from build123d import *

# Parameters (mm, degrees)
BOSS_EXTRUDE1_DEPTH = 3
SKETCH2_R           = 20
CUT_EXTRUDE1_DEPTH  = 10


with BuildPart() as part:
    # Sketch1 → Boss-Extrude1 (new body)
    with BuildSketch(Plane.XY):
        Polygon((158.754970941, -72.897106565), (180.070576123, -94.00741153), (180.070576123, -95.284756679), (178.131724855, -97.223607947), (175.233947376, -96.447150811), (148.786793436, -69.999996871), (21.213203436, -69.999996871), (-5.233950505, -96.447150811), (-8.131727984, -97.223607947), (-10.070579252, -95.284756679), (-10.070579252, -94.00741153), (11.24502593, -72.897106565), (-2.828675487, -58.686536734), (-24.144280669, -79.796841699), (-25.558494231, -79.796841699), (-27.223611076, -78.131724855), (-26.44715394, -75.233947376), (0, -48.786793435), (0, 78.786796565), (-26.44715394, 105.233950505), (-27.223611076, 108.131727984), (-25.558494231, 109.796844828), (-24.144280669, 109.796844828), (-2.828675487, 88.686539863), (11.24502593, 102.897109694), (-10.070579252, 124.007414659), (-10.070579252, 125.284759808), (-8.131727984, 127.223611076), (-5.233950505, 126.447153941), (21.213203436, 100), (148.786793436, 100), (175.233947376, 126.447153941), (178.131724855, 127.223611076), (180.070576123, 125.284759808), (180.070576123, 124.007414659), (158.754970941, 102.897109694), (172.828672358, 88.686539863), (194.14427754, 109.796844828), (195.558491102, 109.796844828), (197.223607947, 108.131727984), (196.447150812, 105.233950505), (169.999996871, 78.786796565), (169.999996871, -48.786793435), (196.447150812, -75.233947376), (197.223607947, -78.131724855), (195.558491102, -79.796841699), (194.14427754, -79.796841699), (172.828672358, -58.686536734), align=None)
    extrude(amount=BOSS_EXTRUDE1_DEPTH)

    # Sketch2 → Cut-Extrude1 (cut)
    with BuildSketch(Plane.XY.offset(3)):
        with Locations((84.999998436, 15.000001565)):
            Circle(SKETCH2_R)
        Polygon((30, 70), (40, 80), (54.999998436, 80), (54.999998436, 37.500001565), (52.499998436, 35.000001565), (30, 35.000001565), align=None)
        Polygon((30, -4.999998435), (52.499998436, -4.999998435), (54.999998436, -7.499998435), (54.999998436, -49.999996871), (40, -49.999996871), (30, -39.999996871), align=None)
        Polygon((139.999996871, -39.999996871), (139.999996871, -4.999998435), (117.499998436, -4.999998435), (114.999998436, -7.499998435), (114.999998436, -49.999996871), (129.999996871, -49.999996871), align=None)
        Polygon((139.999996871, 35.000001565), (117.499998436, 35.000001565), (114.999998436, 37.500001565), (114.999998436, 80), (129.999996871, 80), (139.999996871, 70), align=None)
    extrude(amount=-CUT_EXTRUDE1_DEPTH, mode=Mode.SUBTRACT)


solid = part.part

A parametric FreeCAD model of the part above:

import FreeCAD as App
import Part
import Sketcher

V = App.Vector
Q = App.Units.Quantity

doc = App.newDocument("Part")
body = doc.addObject("PartDesign::Body", "Body")

sketch1 = body.newObject("Sketcher::SketchObject", "Sketch")
sketch1.AttachmentSupport = (doc.getObject("XY_Plane"), [""])
sketch1.MapMode = "FlatFace"
sketch1.addGeometry([
    Part.LineSegment(V(180.1, -94, 0), V(158.8, -72.9, 0)),
    Part.LineSegment(V(158.8, -72.9, 0), V(172.8, -58.7, 0)),
    Part.LineSegment(V(172.8, -58.7, 0), V(194.1, -79.8, 0)),
    Part.LineSegment(V(194.1, -79.8, 0), V(195.6, -79.8, 0)),
    Part.LineSegment(V(195.6, -79.8, 0), V(197.2, -78.1, 0)),
    Part.LineSegment(V(197.2, -78.1, 0), V(196.4, -75.2, 0)),
    Part.LineSegment(V(196.4, -75.2, 0), V(170, -48.8, 0)),
    Part.LineSegment(V(170, -48.8, 0), V(170, 78.8, 0)),
    Part.LineSegment(V(170, 78.8, 0), V(196.4, 105.2, 0)),
    Part.LineSegment(V(196.4, 105.2, 0), V(197.2, 108.1, 0)),
    Part.LineSegment(V(197.2, 108.1, 0), V(195.6, 109.8, 0)),
    Part.LineSegment(V(195.6, 109.8, 0), V(194.1, 109.8, 0)),
    Part.LineSegment(V(194.1, 109.8, 0), V(172.8, 88.7, 0)),
    Part.LineSegment(V(172.8, 88.7, 0), V(158.8, 102.9, 0)),
    Part.LineSegment(V(158.8, 102.9, 0), V(180.1, 124, 0)),
    Part.LineSegment(V(180.1, 124, 0), V(180.1, 125.3, 0)),
    Part.LineSegment(V(180.1, 125.3, 0), V(178.1, 127.2, 0)),
    Part.LineSegment(V(178.1, 127.2, 0), V(175.2, 126.4, 0)),
    Part.LineSegment(V(175.2, 126.4, 0), V(148.8, 100, 0)),
    Part.LineSegment(V(148.8, 100, 0), V(21.2, 100, 0)),
    Part.LineSegment(V(21.2, 100, 0), V(-5.2, 126.4, 0)),
    Part.LineSegment(V(-5.2, 126.4, 0), V(-8.1, 127.2, 0)),
    Part.LineSegment(V(-8.1, 127.2, 0), V(-10.1, 125.3, 0)),
    Part.LineSegment(V(-10.1, 125.3, 0), V(-10.1, 124, 0)),
    Part.LineSegment(V(-10.1, 124, 0), V(11.2, 102.9, 0)),
    Part.LineSegment(V(11.2, 102.9, 0), V(-2.8, 88.7, 0)),
    Part.LineSegment(V(-2.8, 88.7, 0), V(-24.1, 109.8, 0)),
    Part.LineSegment(V(-24.1, 109.8, 0), V(-25.6, 109.8, 0)),
    Part.LineSegment(V(-25.6, 109.8, 0), V(-27.2, 108.1, 0)),
    Part.LineSegment(V(-27.2, 108.1, 0), V(-26.4, 105.2, 0)),
    Part.LineSegment(V(-26.4, 105.2, 0), V(0, 78.8, 0)),
    Part.LineSegment(V(0, 78.8, 0), V(0, -48.8, 0)),
    Part.LineSegment(V(0, -48.8, 0), V(-26.4, -75.2, 0)),
    Part.LineSegment(V(-26.4, -75.2, 0), V(-27.2, -78.1, 0)),
    Part.LineSegment(V(-27.2, -78.1, 0), V(-25.6, -79.8, 0)),
    Part.LineSegment(V(-25.6, -79.8, 0), V(-24.1, -79.8, 0)),
    Part.LineSegment(V(-24.1, -79.8, 0), V(-2.8, -58.7, 0)),
    Part.LineSegment(V(-2.8, -58.7, 0), V(11.2, -72.9, 0)),
    Part.LineSegment(V(11.2, -72.9, 0), V(-10.1, -94, 0)),
    Part.LineSegment(V(-10.1, -94, 0), V(-10.1, -95.3, 0)),
    Part.LineSegment(V(-10.1, -95.3, 0), V(-8.1, -97.2, 0)),
    Part.LineSegment(V(-8.1, -97.2, 0), V(-5.2, -96.4, 0)),
    Part.LineSegment(V(-5.2, -96.4, 0), V(21.2, -70, 0)),
    Part.LineSegment(V(21.2, -70, 0), V(148.8, -70, 0)),
    Part.LineSegment(V(148.8, -70, 0), V(175.2, -96.4, 0)),
    Part.LineSegment(V(175.2, -96.4, 0), V(178.1, -97.2, 0)),
    Part.LineSegment(V(178.1, -97.2, 0), V(180.1, -95.3, 0)),
    Part.LineSegment(V(180.1, -95.3, 0), V(180.1, -94, 0)),
], False)
sketch1.addConstraint([
    Sketcher.Constraint("Coincident", 0, 2, 1, 1),
    Sketcher.Constraint("Coincident", 1, 2, 2, 1),
    Sketcher.Constraint("Coincident", 2, 2, 3, 1),
    Sketcher.Constraint("Coincident", 3, 2, 4, 1),
    Sketcher.Constraint("Coincident", 4, 2, 5, 1),
    Sketcher.Constraint("Coincident", 5, 2, 6, 1),
    Sketcher.Constraint("Coincident", 6, 2, 7, 1),
    Sketcher.Constraint("Coincident", 7, 2, 8, 1),
    Sketcher.Constraint("Coincident", 8, 2, 9, 1),
    Sketcher.Constraint("Coincident", 9, 2, 10, 1),
    Sketcher.Constraint("Coincident", 10, 2, 11, 1),
    Sketcher.Constraint("Coincident", 11, 2, 12, 1),
    Sketcher.Constraint("Coincident", 12, 2, 13, 1),
    Sketcher.Constraint("Coincident", 13, 2, 14, 1),
    Sketcher.Constraint("Coincident", 14, 2, 15, 1),
    Sketcher.Constraint("Coincident", 15, 2, 16, 1),
    Sketcher.Constraint("Coincident", 16, 2, 17, 1),
    Sketcher.Constraint("Coincident", 17, 2, 18, 1),
    Sketcher.Constraint("Coincident", 18, 2, 19, 1),
    Sketcher.Constraint("Coincident", 19, 2, 20, 1),
    Sketcher.Constraint("Coincident", 20, 2, 21, 1),
    Sketcher.Constraint("Coincident", 21, 2, 22, 1),
    Sketcher.Constraint("Coincident", 22, 2, 23, 1),
    Sketcher.Constraint("Coincident", 23, 2, 24, 1),
    Sketcher.Constraint("Coincident", 24, 2, 25, 1),
    Sketcher.Constraint("Coincident", 25, 2, 26, 1),
    Sketcher.Constraint("Coincident", 26, 2, 27, 1),
    Sketcher.Constraint("Coincident", 27, 2, 28, 1),
    Sketcher.Constraint("Coincident", 28, 2, 29, 1),
    Sketcher.Constraint("Coincident", 29, 2, 30, 1),
    Sketcher.Constraint("Coincident", 30, 2, 31, 1),
    Sketcher.Constraint("Coincident", 31, 2, 32, 1),
    Sketcher.Constraint("Coincident", 32, 2, 33, 1),
    Sketcher.Constraint("Coincident", 33, 2, 34, 1),
    Sketcher.Constraint("Coincident", 34, 2, 35, 1),
    Sketcher.Constraint("Coincident", 35, 2, 36, 1),
    Sketcher.Constraint("Coincident", 36, 2, 37, 1),
    Sketcher.Constraint("Coincident", 37, 2, 38, 1),
    Sketcher.Constraint("Coincident", 38, 2, 39, 1),
    Sketcher.Constraint("Coincident", 39, 2, 40, 1),
    Sketcher.Constraint("Coincident", 40, 2, 41, 1),
    Sketcher.Constraint("Coincident", 41, 2, 42, 1),
    Sketcher.Constraint("Coincident", 42, 2, 43, 1),
    Sketcher.Constraint("Coincident", 43, 2, 44, 1),
    Sketcher.Constraint("Coincident", 44, 2, 45, 1),
    Sketcher.Constraint("Coincident", 45, 2, 46, 1),
    Sketcher.Constraint("Coincident", 46, 2, 47, 1),
    Sketcher.Constraint("Coincident", 47, 2, 0, 1),
    Sketcher.Constraint("Horizontal", 3),
    Sketcher.Constraint("Vertical", 7),
    Sketcher.Constraint("Horizontal", 11),
    Sketcher.Constraint("Vertical", 15),
    Sketcher.Constraint("Horizontal", 19),
    Sketcher.Constraint("Vertical", 23),
    Sketcher.Constraint("Horizontal", 27),
    Sketcher.Constraint("Vertical", 31),
    Sketcher.Constraint("Horizontal", 35),
    Sketcher.Constraint("Vertical", 39),
    Sketcher.Constraint("Horizontal", 43),
    Sketcher.Constraint("Vertical", 47),
    Sketcher.Constraint("PointOnObject", 30, 2, -2),
    Sketcher.Constraint("Perpendicular", 0, 1),
    Sketcher.Constraint("Perpendicular", 1, 2),
    Sketcher.Constraint("Perpendicular", 4, 6),
    Sketcher.Constraint("Perpendicular", 6, 8),
    Sketcher.Constraint("Perpendicular", 8, 10),
    Sketcher.Constraint("Perpendicular", 12, 13),
    Sketcher.Constraint("Perpendicular", 13, 14),
    Sketcher.Constraint("Parallel", 10, 16),
    Sketcher.Constraint("Perpendicular", 5, 17),
    Sketcher.Constraint("Perpendicular", 16, 18),
    Sketcher.Constraint("Perpendicular", 18, 20),
    Sketcher.Constraint("Perpendicular", 9, 21),
    Sketcher.Constraint("Perpendicular", 20, 22),
    Sketcher.Constraint("Parallel", 2, 24),
    Sketcher.Constraint("Perpendicular", 24, 25),
    Sketcher.Constraint("Perpendicular", 25, 26),
    Sketcher.Constraint("Parallel", 22, 28),
    Sketcher.Constraint("Perpendicular", 17, 29),
    Sketcher.Constraint("Perpendicular", 28, 30),
    Sketcher.Constraint("Perpendicular", 30, 32),
    Sketcher.Constraint("Perpendicular", 21, 33),
    Sketcher.Constraint("Perpendicular", 32, 34),
    Sketcher.Constraint("Parallel", 14, 36),
    Sketcher.Constraint("Perpendicular", 36, 37),
    Sketcher.Constraint("Perpendicular", 37, 38),
    Sketcher.Constraint("Parallel", 34, 40),
    Sketcher.Constraint("Perpendicular", 29, 41),
    Sketcher.Constraint("Perpendicular", 40, 42),
    Sketcher.Constraint("Perpendicular", 42, 44),
    Sketcher.Constraint("Perpendicular", 33, 45),
    Sketcher.Constraint("Perpendicular", 44, 46),
    Sketcher.Constraint("Horizontal", 17, 2, 20, 2),
    Sketcher.Constraint("Horizontal", 16, 2, 21, 2),
    Sketcher.Constraint("Horizontal", 15, 2, 22, 2),
    Sketcher.Constraint("Horizontal", 14, 2, 23, 2),
    Sketcher.Constraint("Horizontal", 13, 2, 24, 2),
    Sketcher.Constraint("Horizontal", 12, 2, 25, 2),
    Sketcher.Constraint("Horizontal", 11, 2, 26, 2),
    Sketcher.Constraint("Horizontal", 9, 2, 28, 2),
    Sketcher.Constraint("Horizontal", 8, 2, 29, 2),
    Sketcher.Constraint("Horizontal", 7, 2, 30, 2),
    Sketcher.Constraint("Horizontal", 6, 2, 31, 2),
    Sketcher.Constraint("Horizontal", 5, 2, 32, 2),
    Sketcher.Constraint("Horizontal", 4, 2, 33, 2),
    Sketcher.Constraint("Horizontal", 3, 2, 34, 2),
    Sketcher.Constraint("Horizontal", 1, 2, 36, 2),
    Sketcher.Constraint("Horizontal", 0, 2, 37, 2),
    Sketcher.Constraint("Horizontal", 41, 2, 44, 2),
    Sketcher.Constraint("Horizontal", 40, 2, 45, 2),
    Sketcher.Constraint("Horizontal", 39, 2, 46, 2),
    Sketcher.Constraint("Horizontal", 38, 2, 47, 2),
    Sketcher.Constraint("Vertical", 5, 2, 8, 2),
    Sketcher.Constraint("Vertical", 4, 2, 9, 2),
    Sketcher.Constraint("Vertical", 3, 2, 10, 2),
    Sketcher.Constraint("Vertical", 2, 2, 11, 2),
    Sketcher.Constraint("Vertical", 1, 2, 12, 2),
    Sketcher.Constraint("Vertical", 0, 2, 13, 2),
    Sketcher.Constraint("Vertical", 29, 2, 32, 2),
    Sketcher.Constraint("Vertical", 28, 2, 33, 2),
    Sketcher.Constraint("Vertical", 26, 2, 35, 2),
    Sketcher.Constraint("Vertical", 25, 2, 36, 2),
    Sketcher.Constraint("Vertical", 23, 2, 38, 2),
    Sketcher.Constraint("Vertical", 21, 2, 40, 2),
    Sketcher.Constraint("Vertical", 20, 2, 41, 2),
    Sketcher.Constraint("Vertical", 19, 2, 42, 2),
    Sketcher.Constraint("Equal", 11, 27),
    Sketcher.Constraint("Equal", 43, 7),
    Sketcher.Constraint("Equal", 23, 39),
    Sketcher.Constraint("Equal", 0, 2),
    Sketcher.Constraint("Equal", 9, 17),
    Sketcher.Constraint("Equal", 8, 18),
    Sketcher.Constraint("Angle", 5, Q("105 deg")),
    Sketcher.Constraint("Distance", 0, Q("30 mm")),
    Sketcher.Constraint("Distance", 5, Q("3 mm")),
    Sketcher.Constraint("DistanceY", -1, 1, 18, 2, Q("100 mm")),
    Sketcher.Constraint("DistanceX", 19, 2, 19, 1, Q("127.57359 mm")),
    Sketcher.Constraint("DistanceX", 0, 2, 1, 2, Q("14.073701 mm")),
    Sketcher.Constraint("DistanceX", 21, 2, 13, 2, Q("166.886699 mm")),
    Sketcher.Constraint("DistanceY", 13, 2, 21, 2, Q("24.326501 mm")),
    Sketcher.Constraint("Distance", 4, Q("2.354831 mm")),
    Sketcher.Constraint("Distance", 16, Q("2.74195 mm")),
    Sketcher.Constraint("DistanceX", 3, 1, 3, 2, Q("1.414214 mm")),
    Sketcher.Constraint("DistanceY", 15, 1, 15, 2, Q("1.277345 mm")),
])
pad1 = body.newObject("PartDesign::Pad", "Pad")
pad1.Profile = sketch1
pad1.Length = 3

sketch2 = body.newObject("Sketcher::SketchObject", "Sketch001")
sketch2.AttachmentSupport = (doc.getObject("XY_Plane"), [""])
sketch2.MapMode = "FlatFace"
sketch2.AttachmentOffset = App.Placement(V(0, 0, 3), App.Rotation())
sketch2.addGeometry([
    Part.Circle(V(85, 15, 0), V(0, 0, 1), 20),
    Part.LineSegment(V(40, 80, 0), V(30, 70, 0)),
    Part.LineSegment(V(30, 70, 0), V(30, 35, 0)),
    Part.LineSegment(V(30, 35, 0), V(52.5, 35, 0)),
    Part.LineSegment(V(52.5, 35, 0), V(55, 37.5, 0)),
    Part.LineSegment(V(55, 37.5, 0), V(55, 80, 0)),
    Part.LineSegment(V(55, 80, 0), V(40, 80, 0)),
    Part.LineSegment(V(52.5, -5, 0), V(30, -5, 0)),
    Part.LineSegment(V(30, -5, 0), V(30, -40, 0)),
    Part.LineSegment(V(30, -40, 0), V(40, -50, 0)),
    Part.LineSegment(V(40, -50, 0), V(55, -50, 0)),
    Part.LineSegment(V(55, -50, 0), V(55, -7.5, 0)),
    Part.LineSegment(V(55, -7.5, 0), V(52.5, -5, 0)),
    Part.LineSegment(V(140, -40, 0), V(140, -5, 0)),
    Part.LineSegment(V(140, -5, 0), V(117.5, -5, 0)),
    Part.LineSegment(V(117.5, -5, 0), V(115, -7.5, 0)),
    Part.LineSegment(V(115, -7.5, 0), V(115, -50, 0)),
    Part.LineSegment(V(115, -50, 0), V(130, -50, 0)),
    Part.LineSegment(V(130, -50, 0), V(140, -40, 0)),
    Part.LineSegment(V(117.5, 35, 0), V(140, 35, 0)),
    Part.LineSegment(V(140, 35, 0), V(140, 70, 0)),
    Part.LineSegment(V(140, 70, 0), V(130, 80, 0)),
    Part.LineSegment(V(130, 80, 0), V(115, 80, 0)),
    Part.LineSegment(V(115, 80, 0), V(115, 37.5, 0)),
    Part.LineSegment(V(115, 37.5, 0), V(117.5, 35, 0)),
], False)
sketch2.addConstraint([
    Sketcher.Constraint("Coincident", 1, 2, 2, 1),
    Sketcher.Constraint("Coincident", 2, 2, 3, 1),
    Sketcher.Constraint("Coincident", 3, 2, 4, 1),
    Sketcher.Constraint("Coincident", 4, 2, 5, 1),
    Sketcher.Constraint("Coincident", 5, 2, 6, 1),
    Sketcher.Constraint("Coincident", 6, 2, 1, 1),
    Sketcher.Constraint("Coincident", 7, 2, 8, 1),
    Sketcher.Constraint("Coincident", 8, 2, 9, 1),
    Sketcher.Constraint("Coincident", 9, 2, 10, 1),
    Sketcher.Constraint("Coincident", 10, 2, 11, 1),
    Sketcher.Constraint("Coincident", 11, 2, 12, 1),
    Sketcher.Constraint("Coincident", 12, 2, 7, 1),
    Sketcher.Constraint("Coincident", 13, 2, 14, 1),
    Sketcher.Constraint("Coincident", 14, 2, 15, 1),
    Sketcher.Constraint("Coincident", 15, 2, 16, 1),
    Sketcher.Constraint("Coincident", 16, 2, 17, 1),
    Sketcher.Constraint("Coincident", 17, 2, 18, 1),
    Sketcher.Constraint("Coincident", 18, 2, 13, 1),
    Sketcher.Constraint("Coincident", 19, 2, 20, 1),
    Sketcher.Constraint("Coincident", 20, 2, 21, 1),
    Sketcher.Constraint("Coincident", 21, 2, 22, 1),
    Sketcher.Constraint("Coincident", 22, 2, 23, 1),
    Sketcher.Constraint("Coincident", 23, 2, 24, 1),
    Sketcher.Constraint("Coincident", 24, 2, 19, 1),
    Sketcher.Constraint("Vertical", 2),
    Sketcher.Constraint("Horizontal", 3),
    Sketcher.Constraint("Vertical", 5),
    Sketcher.Constraint("Horizontal", 6),
    Sketcher.Constraint("Horizontal", 7),
    Sketcher.Constraint("Vertical", 8),
    Sketcher.Constraint("Horizontal", 10),
    Sketcher.Constraint("Vertical", 11),
    Sketcher.Constraint("Vertical", 13),
    Sketcher.Constraint("Horizontal", 14),
    Sketcher.Constraint("Vertical", 16),
    Sketcher.Constraint("Horizontal", 17),
    Sketcher.Constraint("Horizontal", 19),
    Sketcher.Constraint("Vertical", 20),
    Sketcher.Constraint("Horizontal", 22),
    Sketcher.Constraint("Vertical", 23),
    Sketcher.Constraint("Parallel", 1, 4),
    Sketcher.Constraint("Perpendicular", 4, 9),
    Sketcher.Constraint("Parallel", 9, 12),
    Sketcher.Constraint("Perpendicular", 12, 15),
    Sketcher.Constraint("Parallel", 15, 18),
    Sketcher.Constraint("Perpendicular", 18, 21),
    Sketcher.Constraint("Parallel", 21, 24),
    Sketcher.Constraint("Horizontal", 12, 2, 13, 2),
    Sketcher.Constraint("Horizontal", 11, 2, 15, 2),
    Sketcher.Constraint("Horizontal", 10, 2, 16, 2),
    Sketcher.Constraint("Horizontal", 8, 2, 18, 2),
    Sketcher.Constraint("Horizontal", 3, 2, 19, 2),
    Sketcher.Constraint("Horizontal", 1, 2, 20, 2),
    Sketcher.Constraint("Horizontal", 6, 2, 21, 2),
    Sketcher.Constraint("Horizontal", 4, 2, 23, 2),
    Sketcher.Constraint("Vertical", 2, 2, 7, 2),
    Sketcher.Constraint("Vertical", 6, 2, 9, 2),
    Sketcher.Constraint("Vertical", 5, 2, 10, 2),
    Sketcher.Constraint("Vertical", 3, 2, 12, 2),
    Sketcher.Constraint("Vertical", 18, 2, 19, 2),
    Sketcher.Constraint("Vertical", 17, 2, 21, 2),
    Sketcher.Constraint("Vertical", 16, 2, 22, 2),
    Sketcher.Constraint("Equal", 7, 14),
    Sketcher.Constraint("Equal", 2, 8),
    Sketcher.Constraint("Diameter", 0, Q("40 mm")),
    Sketcher.Constraint("DistanceX", 6, 2, 6, 1, Q("14.999998 mm")),
    Sketcher.Constraint("DistanceY", 2, 2, 2, 1, Q("34.999998 mm")),
    Sketcher.Constraint("DistanceX", 3, 1, 3, 2, Q("22.499998 mm")),
    Sketcher.Constraint("DistanceX", -1, 1, 0, 3, Q("84.999998 mm")),
    Sketcher.Constraint("DistanceY", -1, 1, 0, 3, Q("15.000002 mm")),
    Sketcher.Constraint("DistanceX", -1, 1, 1, 2, Q("30 mm")),
    Sketcher.Constraint("DistanceY", -1, 1, 1, 2, Q("70 mm")),
    Sketcher.Constraint("DistanceX", -1, 1, 4, 2, Q("54.999998 mm")),
    Sketcher.Constraint("DistanceY", 7, 2, -1, 1, Q("4.999998 mm")),
    Sketcher.Constraint("DistanceX", -1, 1, 15, 2, Q("114.999998 mm")),
])
pocket1 = body.newObject("PartDesign::Pocket", "Pocket")
pocket1.Profile = sketch2
pocket1.Length = 10

doc.recompute()
